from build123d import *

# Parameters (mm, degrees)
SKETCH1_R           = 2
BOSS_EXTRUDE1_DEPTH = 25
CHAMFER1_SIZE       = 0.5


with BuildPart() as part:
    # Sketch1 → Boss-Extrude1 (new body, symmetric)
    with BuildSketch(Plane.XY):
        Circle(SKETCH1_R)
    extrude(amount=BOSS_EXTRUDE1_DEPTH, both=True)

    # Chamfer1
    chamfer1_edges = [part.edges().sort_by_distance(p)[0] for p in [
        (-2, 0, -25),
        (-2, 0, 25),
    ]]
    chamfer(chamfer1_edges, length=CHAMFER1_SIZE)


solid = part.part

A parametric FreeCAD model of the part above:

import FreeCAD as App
import Part
import Sketcher
from FreeCAD import Vector
Q = App.Units.Quantity


def edges_at(feature, points):
    """Names of the edges that pass closest to the given points."""
    edges = feature.Shape.Edges
    near = lambda p: min(range(len(edges)), key=lambda i: edges[i].distToShape(Part.Vertex(*p))[0])
    return sorted({f"Edge{near(p) + 1}" for p in points})

doc = App.newDocument("Part")
body = doc.addObject("PartDesign::Body", "Body")

# Sketch on XY plane
sketch1 = body.newObject("Sketcher::SketchObject", "Sketch")
sketch1.AttachmentSupport = (doc.getObject("XY_Plane"), [""])
sketch1.MapMode = "FlatFace"
sketch1.addGeometry(Part.Circle(Vector(0, 0, 0), Vector(0, 0, 1), 2), False)
sketch1.addConstraint(Sketcher.Constraint("Coincident", 0, 3, -1, 1))
sketch1.addConstraint(Sketcher.Constraint("Diameter", 0, Q("4 mm")))
pad1 = body.newObject("PartDesign::Pad", "Pad")
pad1.Profile = sketch1
pad1.Length = 50
pad1.Midplane = True
doc.recompute()

chamfer = body.newObject("PartDesign::Chamfer", "Chamfer")
chamfer.Base = (pad1, edges_at(pad1, [(-2, 0, -25), (-2, 0, 25)]))
chamfer.Size = 0.5

doc.recompute()
